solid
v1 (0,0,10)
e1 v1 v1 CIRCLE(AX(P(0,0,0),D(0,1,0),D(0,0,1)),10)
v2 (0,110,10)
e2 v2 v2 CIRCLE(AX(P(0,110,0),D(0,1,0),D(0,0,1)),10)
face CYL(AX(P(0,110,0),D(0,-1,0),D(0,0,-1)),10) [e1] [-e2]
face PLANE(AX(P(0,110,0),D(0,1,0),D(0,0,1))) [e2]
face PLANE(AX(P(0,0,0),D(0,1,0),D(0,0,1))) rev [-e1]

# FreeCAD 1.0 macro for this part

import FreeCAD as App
import Part
import Sketcher

doc = App.newDocument("Part")
params = doc.addObject("Spreadsheet::Sheet", "Params")
for row, (alias, value) in enumerate([
    ("sketch1_diameter", "20 mm"),
    ("pad1_length", "110 mm"),
], start=1):
    params.set(f"A{row}", alias)
    params.set(f"B{row}", "=" + value)
    params.setAlias(f"B{row}", alias)

body = doc.addObject("PartDesign::Body", "Body")

# Sketch on XZ plane
sketch1 = body.newObject("Sketcher::SketchObject", "Sketch")
sketch1.AttachmentSupport = (doc.getObject("XZ_Plane"), [""])
sketch1.MapMode = "FlatFace"
sketch1.addGeometry(Part.Circle(App.Vector(0, 0, 0), App.Vector(0, 0, 1), 10), False)
sketch1.addConstraint([
    Sketcher.Constraint("Coincident", 0, 3, -1, 1),
    Sketcher.Constraint("Diameter", 0, 20.0),
])
sketch1.setExpression("Constraints[1]", "Params.sketch1_diameter")
pad1 = body.newObject("PartDesign::Pad", "Pad")
pad1.Profile = sketch1
pad1.setExpression("Length", "Params.pad1_length")
pad1.Reversed = True

doc.recompute()
